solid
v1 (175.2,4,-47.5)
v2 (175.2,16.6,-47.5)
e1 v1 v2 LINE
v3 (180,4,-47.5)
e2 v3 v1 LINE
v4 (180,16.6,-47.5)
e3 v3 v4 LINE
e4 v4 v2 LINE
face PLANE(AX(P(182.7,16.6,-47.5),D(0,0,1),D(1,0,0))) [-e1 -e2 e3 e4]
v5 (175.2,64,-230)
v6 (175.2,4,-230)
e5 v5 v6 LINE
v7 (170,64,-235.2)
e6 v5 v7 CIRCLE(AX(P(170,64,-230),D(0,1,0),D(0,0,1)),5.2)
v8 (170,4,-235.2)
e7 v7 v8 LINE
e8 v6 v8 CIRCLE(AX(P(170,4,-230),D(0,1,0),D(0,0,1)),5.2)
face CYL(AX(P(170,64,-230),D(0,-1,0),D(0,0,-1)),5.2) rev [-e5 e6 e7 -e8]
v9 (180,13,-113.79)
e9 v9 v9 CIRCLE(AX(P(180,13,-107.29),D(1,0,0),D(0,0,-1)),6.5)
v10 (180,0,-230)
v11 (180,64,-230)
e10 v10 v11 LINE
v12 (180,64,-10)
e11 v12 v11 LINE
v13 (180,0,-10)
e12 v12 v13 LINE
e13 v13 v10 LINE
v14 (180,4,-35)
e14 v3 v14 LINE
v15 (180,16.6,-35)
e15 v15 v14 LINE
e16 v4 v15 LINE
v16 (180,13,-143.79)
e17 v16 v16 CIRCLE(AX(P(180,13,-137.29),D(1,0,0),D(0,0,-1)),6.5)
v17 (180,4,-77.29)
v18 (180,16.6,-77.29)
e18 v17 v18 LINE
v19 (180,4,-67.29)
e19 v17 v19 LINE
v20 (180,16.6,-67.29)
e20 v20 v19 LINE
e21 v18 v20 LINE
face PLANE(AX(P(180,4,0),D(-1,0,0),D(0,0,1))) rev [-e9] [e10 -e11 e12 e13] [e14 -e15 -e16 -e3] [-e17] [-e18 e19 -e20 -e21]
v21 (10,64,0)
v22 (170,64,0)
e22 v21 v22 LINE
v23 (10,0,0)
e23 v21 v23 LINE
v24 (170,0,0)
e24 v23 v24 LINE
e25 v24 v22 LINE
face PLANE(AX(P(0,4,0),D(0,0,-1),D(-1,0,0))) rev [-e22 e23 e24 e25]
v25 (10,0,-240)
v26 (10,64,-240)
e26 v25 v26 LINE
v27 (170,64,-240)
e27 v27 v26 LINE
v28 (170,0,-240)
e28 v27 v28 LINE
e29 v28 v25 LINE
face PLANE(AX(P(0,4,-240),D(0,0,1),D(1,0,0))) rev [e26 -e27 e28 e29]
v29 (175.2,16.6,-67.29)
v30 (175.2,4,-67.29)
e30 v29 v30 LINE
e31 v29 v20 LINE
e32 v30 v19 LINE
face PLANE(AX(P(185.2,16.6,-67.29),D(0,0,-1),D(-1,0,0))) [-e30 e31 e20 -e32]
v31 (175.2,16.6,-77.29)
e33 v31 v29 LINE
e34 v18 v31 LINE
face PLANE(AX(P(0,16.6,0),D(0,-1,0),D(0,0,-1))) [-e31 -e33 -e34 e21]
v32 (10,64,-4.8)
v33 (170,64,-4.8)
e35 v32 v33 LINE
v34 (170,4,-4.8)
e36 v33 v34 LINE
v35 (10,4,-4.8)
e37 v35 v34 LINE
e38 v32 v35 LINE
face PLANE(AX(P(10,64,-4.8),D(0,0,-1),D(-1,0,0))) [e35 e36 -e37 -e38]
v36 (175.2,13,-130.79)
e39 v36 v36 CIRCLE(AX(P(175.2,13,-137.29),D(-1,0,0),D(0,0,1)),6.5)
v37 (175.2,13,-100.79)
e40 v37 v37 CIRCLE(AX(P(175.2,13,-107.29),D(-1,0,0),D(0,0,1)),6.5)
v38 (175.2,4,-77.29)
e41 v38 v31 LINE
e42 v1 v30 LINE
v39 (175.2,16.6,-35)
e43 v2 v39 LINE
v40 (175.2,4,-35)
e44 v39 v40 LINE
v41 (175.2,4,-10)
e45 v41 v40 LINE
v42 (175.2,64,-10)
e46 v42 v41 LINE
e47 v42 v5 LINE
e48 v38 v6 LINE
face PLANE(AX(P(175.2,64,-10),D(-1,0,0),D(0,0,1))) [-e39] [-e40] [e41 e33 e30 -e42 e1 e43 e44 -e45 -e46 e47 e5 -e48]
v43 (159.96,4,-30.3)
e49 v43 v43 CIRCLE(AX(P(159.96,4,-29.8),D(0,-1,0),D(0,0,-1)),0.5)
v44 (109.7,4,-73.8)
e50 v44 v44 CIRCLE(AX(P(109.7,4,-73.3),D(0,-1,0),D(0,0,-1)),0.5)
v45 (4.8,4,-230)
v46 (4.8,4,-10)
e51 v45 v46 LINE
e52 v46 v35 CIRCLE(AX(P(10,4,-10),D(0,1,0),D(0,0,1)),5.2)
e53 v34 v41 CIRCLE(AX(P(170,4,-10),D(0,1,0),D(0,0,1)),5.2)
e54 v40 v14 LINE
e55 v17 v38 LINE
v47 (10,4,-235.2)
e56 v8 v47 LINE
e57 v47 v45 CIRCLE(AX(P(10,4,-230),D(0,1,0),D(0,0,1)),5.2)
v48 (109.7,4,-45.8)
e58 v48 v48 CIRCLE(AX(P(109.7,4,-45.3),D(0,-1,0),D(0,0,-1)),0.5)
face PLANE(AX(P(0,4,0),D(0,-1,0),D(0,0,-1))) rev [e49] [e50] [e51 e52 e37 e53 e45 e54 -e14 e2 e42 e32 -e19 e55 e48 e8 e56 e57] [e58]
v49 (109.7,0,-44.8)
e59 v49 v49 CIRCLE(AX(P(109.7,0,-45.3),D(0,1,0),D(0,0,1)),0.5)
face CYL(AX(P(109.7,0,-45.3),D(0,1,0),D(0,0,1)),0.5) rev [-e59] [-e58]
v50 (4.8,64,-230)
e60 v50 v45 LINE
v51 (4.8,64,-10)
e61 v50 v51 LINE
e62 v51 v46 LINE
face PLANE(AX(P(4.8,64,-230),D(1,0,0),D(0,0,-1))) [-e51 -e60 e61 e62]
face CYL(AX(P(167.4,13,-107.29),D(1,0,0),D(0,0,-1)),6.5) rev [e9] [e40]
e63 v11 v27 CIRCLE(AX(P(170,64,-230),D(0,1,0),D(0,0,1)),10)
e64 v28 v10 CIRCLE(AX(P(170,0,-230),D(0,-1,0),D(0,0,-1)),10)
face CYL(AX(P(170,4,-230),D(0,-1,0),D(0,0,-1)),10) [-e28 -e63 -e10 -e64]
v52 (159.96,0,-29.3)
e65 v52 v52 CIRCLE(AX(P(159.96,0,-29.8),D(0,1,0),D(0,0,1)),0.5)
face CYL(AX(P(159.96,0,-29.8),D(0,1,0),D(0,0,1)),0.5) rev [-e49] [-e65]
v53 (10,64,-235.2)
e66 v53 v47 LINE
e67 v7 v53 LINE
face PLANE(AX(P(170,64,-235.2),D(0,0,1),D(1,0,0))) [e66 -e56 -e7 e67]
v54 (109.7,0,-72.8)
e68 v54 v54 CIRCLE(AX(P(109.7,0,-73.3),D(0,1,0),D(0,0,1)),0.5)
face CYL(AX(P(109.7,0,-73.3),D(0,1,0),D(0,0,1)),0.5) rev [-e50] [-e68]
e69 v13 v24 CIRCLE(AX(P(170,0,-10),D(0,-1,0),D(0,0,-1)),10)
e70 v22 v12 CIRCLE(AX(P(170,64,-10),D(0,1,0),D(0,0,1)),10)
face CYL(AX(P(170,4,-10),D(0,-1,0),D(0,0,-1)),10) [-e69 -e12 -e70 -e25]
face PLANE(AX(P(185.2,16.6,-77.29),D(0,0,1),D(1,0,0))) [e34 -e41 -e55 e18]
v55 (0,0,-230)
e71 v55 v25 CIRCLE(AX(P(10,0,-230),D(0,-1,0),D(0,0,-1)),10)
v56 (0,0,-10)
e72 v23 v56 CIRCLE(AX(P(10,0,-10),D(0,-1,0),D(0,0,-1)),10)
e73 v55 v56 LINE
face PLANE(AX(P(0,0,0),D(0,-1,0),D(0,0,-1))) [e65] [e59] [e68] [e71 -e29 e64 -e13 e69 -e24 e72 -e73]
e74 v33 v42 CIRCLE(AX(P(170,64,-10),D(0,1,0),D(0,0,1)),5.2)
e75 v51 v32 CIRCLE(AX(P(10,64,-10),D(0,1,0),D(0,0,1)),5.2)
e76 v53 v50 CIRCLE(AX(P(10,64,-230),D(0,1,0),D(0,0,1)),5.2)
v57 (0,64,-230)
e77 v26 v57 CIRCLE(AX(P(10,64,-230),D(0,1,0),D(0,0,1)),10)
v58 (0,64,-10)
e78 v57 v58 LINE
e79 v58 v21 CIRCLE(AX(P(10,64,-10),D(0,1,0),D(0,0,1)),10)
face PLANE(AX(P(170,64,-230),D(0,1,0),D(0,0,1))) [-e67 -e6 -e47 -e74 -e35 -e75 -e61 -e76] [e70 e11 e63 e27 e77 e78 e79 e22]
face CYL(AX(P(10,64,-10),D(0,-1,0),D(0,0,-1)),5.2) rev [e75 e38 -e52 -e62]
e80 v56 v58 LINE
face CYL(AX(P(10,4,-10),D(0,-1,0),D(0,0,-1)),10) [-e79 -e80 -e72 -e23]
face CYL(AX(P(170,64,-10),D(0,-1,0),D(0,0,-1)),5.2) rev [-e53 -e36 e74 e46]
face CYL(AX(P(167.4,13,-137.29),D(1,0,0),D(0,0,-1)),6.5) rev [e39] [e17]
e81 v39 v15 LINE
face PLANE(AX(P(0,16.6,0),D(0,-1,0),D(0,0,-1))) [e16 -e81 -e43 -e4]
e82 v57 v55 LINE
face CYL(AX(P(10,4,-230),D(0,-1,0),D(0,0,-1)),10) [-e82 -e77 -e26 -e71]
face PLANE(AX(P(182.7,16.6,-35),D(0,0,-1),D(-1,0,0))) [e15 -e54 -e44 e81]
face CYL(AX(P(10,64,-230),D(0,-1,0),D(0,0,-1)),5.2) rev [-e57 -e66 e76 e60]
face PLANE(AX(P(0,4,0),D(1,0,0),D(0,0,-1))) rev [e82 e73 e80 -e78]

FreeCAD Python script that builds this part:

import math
import FreeCAD as App
import Part
import Sketcher
from FreeCAD import Vector


def edges_at(feature, points):
    """Names of the edges that pass closest to the given points."""
    edges = feature.Shape.Edges
    near = lambda p: min(range(len(edges)), key=lambda i: edges[i].distToShape(Part.Vertex(*p))[0])
    return sorted({f"Edge{near(p) + 1}" for p in points})


def add_polygon(sketch, points):
    """Adds a closed chain of lines whose ends are joined by coincident constraints."""
    first, n = sketch.GeometryCount, len(points)
    for a, b in zip(points, points[1:] + points[:1]):
        sketch.addGeometry(Part.LineSegment(App.Vector(*a, 0), App.Vector(*b, 0)), False)
    for i in range(n):
        sketch.addConstraint(Sketcher.Constraint("Coincident", first + i, 2, first + (i + 1) % n, 1))

doc = App.newDocument("Part")
body = doc.addObject("PartDesign::Body", "Body")

# Sketch on XZ plane
sketch1 = body.newObject("Sketcher::SketchObject", "Sketch")
sketch1.AttachmentSupport = (doc.getObject("XZ_Plane"), [""])
sketch1.MapMode = "FlatFace"
add_polygon(sketch1, [(0, -240), (0, 0), (180, 0), (180, -240)])  # lines 0-3
sketch1.addConstraint(Sketcher.Constraint("Vertical", 0))
sketch1.addConstraint(Sketcher.Constraint("Horizontal", 1))
sketch1.addConstraint(Sketcher.Constraint("Vertical", 2))
sketch1.addConstraint(Sketcher.Constraint("Horizontal", 3))
sketch1.addConstraint(Sketcher.Constraint("Coincident", 0, 2, -1, 1))
sketch1.addConstraint(Sketcher.Constraint("DistanceX", 1, 1, 1, 2, 180.0))
sketch1.addConstraint(Sketcher.Constraint("DistanceY", 0, 1, 0, 2, 240.0))
pad1 = body.newObject("PartDesign::Pad", "Pad")
pad1.Profile = sketch1
pad1.Length = 4
pad1.Reversed = True
doc.recompute()

fillet = body.newObject("PartDesign::Fillet", "Fillet")
fillet.Base = (pad1, edges_at(pad1, [
    (0, 2, -240),
    (180, 2, -240),
    (180, 2, 0),
    (0, 2, 0),
]))
fillet.Radius = 10

# Sketch on XZ plane
sketch2 = body.newObject("Sketcher::SketchObject", "Sketch001")
sketch2.AttachmentSupport = (doc.getObject("XZ_Plane"), [""])
sketch2.MapMode = "FlatFace"
sketch2.AttachmentOffset = App.Placement(Vector(0, 0, -4), App.Rotation())
sketch2.addGeometry(Part.LineSegment(Vector(170, -240, 0), Vector(10, -240, 0)), False)
sketch2.addGeometry(Part.ArcOfCircle(Part.Circle(Vector(10, -230, 0), Vector(0, 0, 1), 10), math.radians(180), math.radians(270)), False)
sketch2.addGeometry(Part.LineSegment(Vector(0, -230, 0), Vector(0, -10, 0)), False)
sketch2.addGeometry(Part.ArcOfCircle(Part.Circle(Vector(10, -10, 0), Vector(0, 0, 1), 10), math.radians(90), math.radians(180)), False)
sketch2.addGeometry(Part.LineSegment(Vector(10, 0, 0), Vector(170, 0, 0)), False)
sketch2.addGeometry(Part.ArcOfCircle(Part.Circle(Vector(170, -10, 0), Vector(0, 0, 1), 10), math.radians(0), math.radians(90)), False)
sketch2.addGeometry(Part.LineSegment(Vector(180, -10, 0), Vector(180, -230, 0)), False)
sketch2.addGeometry(Part.ArcOfCircle(Part.Circle(Vector(170, -230, 0), Vector(0, 0, 1), 10), math.radians(-90), math.radians(0)), False)
sketch2.addGeometry(Part.LineSegment(Vector(10, -235, 0), Vector(170, -235, 0)), False)
sketch2.addGeometry(Part.ArcOfCircle(Part.Circle(Vector(170, -230, 0), Vector(0, 0, 1), 5), math.radians(-90), math.radians(0)), False)
sketch2.addGeometry(Part.LineSegment(Vector(175, -230, 0), Vector(175, -10, 0)), False)
sketch2.addGeometry(Part.ArcOfCircle(Part.Circle(Vector(170, -10, 0), Vector(0, 0, 1), 5), math.radians(0), math.radians(90)), False)
sketch2.addGeometry(Part.LineSegment(Vector(170, -5, 0), Vector(10, -5, 0)), False)
sketch2.addGeometry(Part.ArcOfCircle(Part.Circle(Vector(10, -10, 0), Vector(0, 0, 1), 5), math.radians(90), math.radians(180)), False)
sketch2.addGeometry(Part.LineSegment(Vector(5, -10, 0), Vector(5, -230, 0)), False)
sketch2.addGeometry(Part.ArcOfCircle(Part.Circle(Vector(10, -230, 0), Vector(0, 0, 1), 5), math.radians(-180), math.radians(-90)), False)
sketch2.addConstraint(Sketcher.Constraint("Tangent", 0, 2, 1, 2))
sketch2.addConstraint(Sketcher.Constraint("Tangent", 1, 1, 2, 1))
sketch2.addConstraint(Sketcher.Constraint("Tangent", 2, 2, 3, 2))
sketch2.addConstraint(Sketcher.Constraint("Tangent", 3, 1, 4, 1))
sketch2.addConstraint(Sketcher.Constraint("Tangent", 4, 2, 5, 2))
sketch2.addConstraint(Sketcher.Constraint("Tangent", 5, 1, 6, 1))
sketch2.addConstraint(Sketcher.Constraint("Tangent", 6, 2, 7, 2))
sketch2.addConstraint(Sketcher.Constraint("Tangent", 7, 1, 0, 1))
sketch2.addConstraint(Sketcher.Constraint("Tangent", 8, 2, 9, 1))
sketch2.addConstraint(Sketcher.Constraint("Tangent", 9, 2, 10, 1))
sketch2.addConstraint(Sketcher.Constraint("Tangent", 10, 2, 11, 1))
sketch2.addConstraint(Sketcher.Constraint("Tangent", 11, 2, 12, 1))
sketch2.addConstraint(Sketcher.Constraint("Tangent", 12, 2, 13, 1))
sketch2.addConstraint(Sketcher.Constraint("Tangent", 13, 2, 14, 1))
sketch2.addConstraint(Sketcher.Constraint("Tangent", 14, 2, 15, 1))
sketch2.addConstraint(Sketcher.Constraint("Tangent", 15, 2, 8, 1))
sketch2.addConstraint(Sketcher.Constraint("Horizontal", 0))
sketch2.addConstraint(Sketcher.Constraint("Vertical", 2))
sketch2.addConstraint(Sketcher.Constraint("Horizontal", 4))
sketch2.addConstraint(Sketcher.Constraint("Vertical", 6))
sketch2.addConstraint(Sketcher.Constraint("Horizontal", 8))
sketch2.addConstraint(Sketcher.Constraint("Vertical", 10))
sketch2.addConstraint(Sketcher.Constraint("Horizontal", 12))
sketch2.addConstraint(Sketcher.Constraint("Vertical", 14))
sketch2.addConstraint(Sketcher.Constraint("Coincident", 9, 3, 7, 3))
sketch2.addConstraint(Sketcher.Constraint("Coincident", 11, 3, 5, 3))
sketch2.addConstraint(Sketcher.Constraint("Coincident", 13, 3, 3, 3))
sketch2.addConstraint(Sketcher.Constraint("Equal", 1, 3))
sketch2.addConstraint(Sketcher.Constraint("Equal", 3, 5))
sketch2.addConstraint(Sketcher.Constraint("Equal", 5, 7))
sketch2.addConstraint(Sketcher.Constraint("Equal", 13, 15))
sketch2.addConstraint(Sketcher.Constraint("PointOnObject", 1, 1, -2))
sketch2.addConstraint(Sketcher.Constraint("PointOnObject", 3, 1, -1))
sketch2.addConstraint(Sketcher.Constraint("Radius", 1, 10.0))
sketch2.addConstraint(Sketcher.Constraint("Radius", 9, 5.2))
sketch2.addConstraint(Sketcher.Constraint("DistanceX", 0, 2, 0, 1, 160.0))
sketch2.addConstraint(Sketcher.Constraint("DistanceY", 2, 1, 2, 2, 220.0))
pad2 = body.newObject("PartDesign::Pad", "Pad001")
pad2.Profile = sketch2
pad2.Length = 60
pad2.Reversed = True

# Sketch on XZ plane
sketch3 = body.newObject("Sketcher::SketchObject", "Sketch002")
sketch3.AttachmentSupport = (doc.getObject("XZ_Plane"), [""])
sketch3.MapMode = "FlatFace"
sketch3.AttachmentOffset = App.Placement(Vector(0, 0, -4), App.Rotation())
sketch3.addGeometry(Part.Circle(Vector(160, -29.8, 0), Vector(0, 0, 1), 0.5), False)
sketch3.addGeometry(Part.Circle(Vector(109.7, -45.3, 0), Vector(0, 0, 1), 0.5), False)
sketch3.addGeometry(Part.Circle(Vector(109.7, -73.3, 0), Vector(0, 0, 1), 0.5), False)
sketch3.addConstraint(Sketcher.Constraint("Equal", 0, 1))
sketch3.addConstraint(Sketcher.Constraint("Equal", 1, 2))
sketch3.addConstraint(Sketcher.Constraint("Vertical", 1, 3, 2, 3))
sketch3.addConstraint(Sketcher.Constraint("Diameter", 0, 1.0))
sketch3.addConstraint(Sketcher.Constraint("DistanceY", 2, 3, 1, 3, 28.0))
sketch3.addConstraint(Sketcher.Constraint("DistanceY", 0, 3, -1, 1, 29.8))
sketch3.addConstraint(Sketcher.Constraint("DistanceX", -1, 1, 1, 3, 109.7))
sketch3.addConstraint(Sketcher.Constraint("DistanceY", 1, 3, -1, 1, 45.3))
sketch3.addConstraint(Sketcher.Constraint("DistanceX", -1, 1, 0, 3, 159.96))
pocket1 = body.newObject("PartDesign::Pocket", "Pocket")
pocket1.Profile = sketch3
pocket1.Type = "ThroughAll"
pocket1.Midplane = True

# Sketch on XZ plane
sketch4 = body.newObject("Sketcher::SketchObject", "Sketch003")
sketch4.AttachmentSupport = (doc.getObject("XZ_Plane"), [""])
sketch4.MapMode = "FlatFace"
sketch4.AttachmentOffset = App.Placement(Vector(0, 0, -4), App.Rotation())
add_polygon(sketch4, [(168, -48), (168, -35), (183, -35), (183, -48)])  # lines 0-3
add_polygon(sketch4, [(165, -77), (165, -67), (185, -67), (185, -77)])  # lines 4-7
sketch4.addConstraint(Sketcher.Constraint("Vertical", 0))
sketch4.addConstraint(Sketcher.Constraint("Horizontal", 1))
sketch4.addConstraint(Sketcher.Constraint("Vertical", 2))
sketch4.addConstraint(Sketcher.Constraint("Horizontal", 3))
sketch4.addConstraint(Sketcher.Constraint("Vertical", 4))
sketch4.addConstraint(Sketcher.Constraint("Horizontal", 5))
sketch4.addConstraint(Sketcher.Constraint("Vertical", 6))
sketch4.addConstraint(Sketcher.Constraint("Horizontal", 7))
sketch4.addConstraint(Sketcher.Constraint("DistanceX", 1, 1, 1, 2, 15.0))
sketch4.addConstraint(Sketcher.Constraint("DistanceX", 5, 1, 5, 2, 20.0))
sketch4.addConstraint(Sketcher.Constraint("DistanceY", 4, 1, 4, 2, 10.0))
sketch4.addConstraint(Sketcher.Constraint("DistanceY", 0, 1, 0, 2, 12.5))
sketch4.addConstraint(Sketcher.Constraint("DistanceY", 0, 2, -1, 1, 35.0))
sketch4.addConstraint(Sketcher.Constraint("DistanceX", -1, 1, 0, 2, 167.7))
sketch4.addConstraint(Sketcher.Constraint("DistanceX", -1, 1, 4, 2, 165.2))
sketch4.addConstraint(Sketcher.Constraint("DistanceY", 4, 2, -1, 1, 67.29))
pocket2 = body.newObject("PartDesign::Pocket", "Pocket001")
pocket2.Profile = sketch4
pocket2.Length = 12.6

# Sketch on YZ plane
sketch5 = body.newObject("Sketcher::SketchObject", "Sketch004")
sketch5.AttachmentSupport = (doc.getObject("YZ_Plane"), [""])
sketch5.MapMode = "FlatFace"
sketch5.AttachmentOffset = App.Placement(Vector(0, 0, 180), App.Rotation())
sketch5.addGeometry(Part.Circle(Vector(13, -107, 0), Vector(0, 0, 1), 6), False)
sketch5.addGeometry(Part.Circle(Vector(13, -137, 0), Vector(0, 0, 1), 6), False)
sketch5.addConstraint(Sketcher.Constraint("Equal", 0, 1))
sketch5.addConstraint(Sketcher.Constraint("Vertical", 0, 3, 1, 3))
sketch5.addConstraint(Sketcher.Constraint("Diameter", 0, 13.0))
sketch5.addConstraint(Sketcher.Constraint("DistanceX", -1, 1, 0, 3, 13.0))
sketch5.addConstraint(Sketcher.Constraint("DistanceY", 1, 3, 0, 3, 30.0))
sketch5.addConstraint(Sketcher.Constraint("DistanceY", 0, 3, -1, 1, 107.29))
pocket3 = body.newObject("PartDesign::Pocket", "Pocket002")
pocket3.Profile = sketch5
pocket3.Length = 12.6

doc.recompute()
